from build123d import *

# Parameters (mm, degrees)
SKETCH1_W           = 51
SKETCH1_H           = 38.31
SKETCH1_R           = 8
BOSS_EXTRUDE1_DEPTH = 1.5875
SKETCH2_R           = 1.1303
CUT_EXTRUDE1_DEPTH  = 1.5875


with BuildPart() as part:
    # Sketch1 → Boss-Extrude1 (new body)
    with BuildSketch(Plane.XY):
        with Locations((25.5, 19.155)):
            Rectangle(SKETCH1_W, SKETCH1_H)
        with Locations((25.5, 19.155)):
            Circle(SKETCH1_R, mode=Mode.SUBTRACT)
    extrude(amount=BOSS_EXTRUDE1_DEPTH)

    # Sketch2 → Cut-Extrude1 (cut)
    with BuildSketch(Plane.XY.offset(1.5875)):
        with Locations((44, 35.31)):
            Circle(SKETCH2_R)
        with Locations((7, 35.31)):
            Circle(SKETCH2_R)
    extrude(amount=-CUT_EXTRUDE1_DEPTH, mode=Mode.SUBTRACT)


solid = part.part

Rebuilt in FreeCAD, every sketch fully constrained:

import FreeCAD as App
import Part
import Sketcher

V = App.Vector
Q = App.Units.Quantity

doc = App.newDocument("Part")
params = doc.addObject("Spreadsheet::Sheet", "Params")
for row, (alias, value) in enumerate([
    ("sketch1_diameter", "16 mm"),
    ("sketch1_width", "51 mm"),
    ("sketch1_height", "38.31 mm"),
    ("pad1_length", "1.5875 mm"),
    ("pocket1_length", "1.5875 mm"),
], start=1):
    params.set(f"A{row}", alias)
    params.set(f"B{row}", "=" + value)
    params.setAlias(f"B{row}", alias)

body = doc.addObject("PartDesign::Body", "Body")

# Sketch on XY plane
sketch1 = body.newObject("Sketcher::SketchObject", "Sketch")
sketch1.AttachmentSupport = (doc.getObject("XY_Plane"), [""])
sketch1.MapMode = "FlatFace"
sketch1.addGeometry([
    Part.LineSegment(V(0, 38, 0), V(0, 0, 0)),  # 0
    Part.LineSegment(V(0, 0, 0), V(51, 0, 0)),  # 1
    Part.LineSegment(V(51, 0, 0), V(51, 38, 0)),  # 2
    Part.LineSegment(V(51, 38, 0), V(0, 38, 0)),  # 3
    Part.Circle(V(26, 19, 0), V(0, 0, 1), 8),  # 4
], False)
sketch1.addConstraint([
    Sketcher.Constraint("Coincident", 0, 2, 1, 1),
    Sketcher.Constraint("Coincident", 1, 2, 2, 1),
    Sketcher.Constraint("Coincident", 2, 2, 3, 1),
    Sketcher.Constraint("Coincident", 3, 2, 0, 1),
    Sketcher.Constraint("Vertical", 0),
    Sketcher.Constraint("Horizontal", 1),
    Sketcher.Constraint("Vertical", 2),
    Sketcher.Constraint("Horizontal", 3),
    Sketcher.Constraint("Coincident", 0, 2, -1, 1),
    Sketcher.Constraint("Diameter", 4, Q("16 mm")),
    Sketcher.Constraint("DistanceX", 1, 1, 1, 2, Q("51 mm")),
    Sketcher.Constraint("DistanceY", 0, 2, 0, 1, Q("38.31 mm")),
    Sketcher.Constraint("DistanceX", -1, 1, 4, 3, Q("25.5 mm")),
    Sketcher.Constraint("DistanceY", -1, 1, 4, 3, Q("19.155 mm")),
])
sketch1.setExpression("Constraints[9]", "Params.sketch1_diameter")
sketch1.setExpression("Constraints[10]", "Params.sketch1_width")
sketch1.setExpression("Constraints[11]", "Params.sketch1_height")
pad1 = body.newObject("PartDesign::Pad", "Pad")
pad1.Profile = sketch1
pad1.setExpression("Length", "Params.pad1_length")

# Sketch on XY plane
sketch2 = body.newObject("Sketcher::SketchObject", "Sketch001")
sketch2.AttachmentSupport = (doc.getObject("XY_Plane"), [""])
sketch2.MapMode = "FlatFace"
sketch2.AttachmentOffset = App.Placement(V(0, 0, 1.5875), App.Rotation())
sketch2.addGeometry([
    Part.Circle(V(44, 35.3, 0), V(0, 0, 1), 1.1),
    Part.Circle(V(7, 35.3, 0), V(0, 0, 1), 1.1),
], False)
sketch2.addConstraint([
    Sketcher.Constraint("Equal", 0, 1),
    Sketcher.Constraint("Horizontal", 0, 3, 1, 3),
    Sketcher.Constraint("DistanceX", -1, 1, 0, 3, Q("44 mm")),
    Sketcher.Constraint("DistanceX", -1, 1, 1, 3, Q("7 mm")),
    Sketcher.Constraint("Diameter", 0, Q("2.2606 mm")),
    Sketcher.Constraint("DistanceY", -1, 1, 0, 3, Q("35.31 mm")),
])
pocket1 = body.newObject("PartDesign::Pocket", "Pocket")
pocket1.Profile = sketch2
pocket1.setExpression("Length", "Params.pocket1_length")

doc.recompute()
